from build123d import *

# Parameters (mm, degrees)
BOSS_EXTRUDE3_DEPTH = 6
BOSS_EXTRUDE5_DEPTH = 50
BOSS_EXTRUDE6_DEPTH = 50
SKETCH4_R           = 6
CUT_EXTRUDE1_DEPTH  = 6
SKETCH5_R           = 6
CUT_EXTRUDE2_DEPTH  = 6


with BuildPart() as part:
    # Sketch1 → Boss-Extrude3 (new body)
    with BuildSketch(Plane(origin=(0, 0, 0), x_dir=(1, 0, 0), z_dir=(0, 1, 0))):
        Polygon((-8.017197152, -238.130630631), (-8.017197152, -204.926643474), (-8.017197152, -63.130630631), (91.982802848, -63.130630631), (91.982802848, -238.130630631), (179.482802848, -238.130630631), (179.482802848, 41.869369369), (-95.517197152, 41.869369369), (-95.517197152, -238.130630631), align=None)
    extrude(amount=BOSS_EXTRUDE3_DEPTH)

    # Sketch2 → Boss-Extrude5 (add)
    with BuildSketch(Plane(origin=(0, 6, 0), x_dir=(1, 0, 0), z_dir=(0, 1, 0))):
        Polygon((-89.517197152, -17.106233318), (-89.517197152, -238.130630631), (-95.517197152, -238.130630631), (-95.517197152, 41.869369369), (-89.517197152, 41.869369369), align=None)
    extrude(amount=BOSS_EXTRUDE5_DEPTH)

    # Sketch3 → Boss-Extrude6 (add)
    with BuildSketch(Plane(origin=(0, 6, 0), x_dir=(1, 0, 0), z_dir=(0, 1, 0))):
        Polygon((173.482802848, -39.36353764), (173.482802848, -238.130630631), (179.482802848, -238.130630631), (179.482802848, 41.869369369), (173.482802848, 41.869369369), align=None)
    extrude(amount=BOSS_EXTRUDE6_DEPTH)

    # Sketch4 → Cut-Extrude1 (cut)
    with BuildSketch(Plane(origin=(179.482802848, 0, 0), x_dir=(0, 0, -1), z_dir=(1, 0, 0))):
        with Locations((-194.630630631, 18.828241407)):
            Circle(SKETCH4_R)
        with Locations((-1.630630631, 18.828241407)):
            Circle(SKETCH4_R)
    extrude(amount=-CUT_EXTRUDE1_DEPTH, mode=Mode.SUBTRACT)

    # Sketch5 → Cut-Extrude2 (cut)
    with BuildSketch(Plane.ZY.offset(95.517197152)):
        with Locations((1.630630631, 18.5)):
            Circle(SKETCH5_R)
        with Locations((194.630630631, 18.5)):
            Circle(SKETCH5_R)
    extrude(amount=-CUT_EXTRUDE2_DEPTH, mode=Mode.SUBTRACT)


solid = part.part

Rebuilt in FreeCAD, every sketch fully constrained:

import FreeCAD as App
import Part
import Sketcher

doc = App.newDocument("Part")
params = doc.addObject("Spreadsheet::Sheet", "Params")
for row, (alias, value) in enumerate([
    ("sketch1_width", "100 mm"),
    ("sketch1_width2", "275 mm"),
    ("sketch1_height", "175 mm"),
    ("sketch1_height2", "280 mm"),
    ("pad1_length", "6 mm"),
    ("sketch2_width", "6 mm"),
    ("sketch2_height", "280 mm"),
    ("pad2_length", "50 mm"),
    ("sketch3_width", "6 mm"),
    ("sketch3_height", "280 mm"),
    ("pad3_length", "50 mm"),
    ("sketch4_diameter", "12 mm"),
    ("pocket1_length", "6 mm"),
    ("sketch5_diameter", "12 mm"),
    ("pocket2_length", "6 mm"),
], start=1):
    params.set(f"A{row}", alias)
    params.set(f"B{row}", "=" + value)
    params.setAlias(f"B{row}", alias)

body = doc.addObject("PartDesign::Body", "Body")

# Sketch on XZ plane
sketch1 = body.newObject("Sketcher::SketchObject", "Sketch")
sketch1.AttachmentSupport = (doc.getObject("XZ_Plane"), [""])
sketch1.MapMode = "FlatFace"
sketch1.addGeometry(Part.LineSegment(App.Vector(-8.017197, 238.130631, 0), App.Vector(-8.017197, 63.130631, 0)), False)
sketch1.addGeometry(Part.LineSegment(App.Vector(-8.017197, 63.130631, 0), App.Vector(91.982803, 63.130631, 0)), False)
sketch1.addGeometry(Part.LineSegment(App.Vector(91.982803, 63.130631, 0), App.Vector(91.982803, 238.130631, 0)), False)
sketch1.addGeometry(Part.LineSegment(App.Vector(91.982803, 238.130631, 0), App.Vector(179.482803, 238.130631, 0)), False)
sketch1.addGeometry(Part.LineSegment(App.Vector(179.482803, 238.130631, 0), App.Vector(179.482803, -41.869369, 0)), False)
sketch1.addGeometry(Part.LineSegment(App.Vector(179.482803, -41.869369, 0), App.Vector(-95.517197, -41.869369, 0)), False)
sketch1.addGeometry(Part.LineSegment(App.Vector(-95.517197, -41.869369, 0), App.Vector(-95.517197, 238.130631, 0)), False)
sketch1.addGeometry(Part.LineSegment(App.Vector(-95.517197, 238.130631, 0), App.Vector(-8.017197, 238.130631, 0)), False)
sketch1.addConstraint(Sketcher.Constraint("Coincident", 0, 2, 1, 1))
sketch1.addConstraint(Sketcher.Constraint("Coincident", 1, 2, 2, 1))
sketch1.addConstraint(Sketcher.Constraint("Coincident", 2, 2, 3, 1))
sketch1.addConstraint(Sketcher.Constraint("Coincident", 3, 2, 4, 1))
sketch1.addConstraint(Sketcher.Constraint("Coincident", 4, 2, 5, 1))
sketch1.addConstraint(Sketcher.Constraint("Coincident", 5, 2, 6, 1))
sketch1.addConstraint(Sketcher.Constraint("Coincident", 6, 2, 7, 1))
sketch1.addConstraint(Sketcher.Constraint("Coincident", 7, 2, 0, 1))
sketch1.addConstraint(Sketcher.Constraint("Vertical", 0))
sketch1.addConstraint(Sketcher.Constraint("Horizontal", 1))
sketch1.addConstraint(Sketcher.Constraint("Vertical", 2))
sketch1.addConstraint(Sketcher.Constraint("Horizontal", 3))
sketch1.addConstraint(Sketcher.Constraint("Vertical", 4))
sketch1.addConstraint(Sketcher.Constraint("Horizontal", 5))
sketch1.addConstraint(Sketcher.Constraint("Vertical", 6))
sketch1.addConstraint(Sketcher.Constraint("Horizontal", 7))
sketch1.addConstraint(Sketcher.Constraint("Horizontal", 3, 2, 6, 2))
sketch1.addConstraint(Sketcher.Constraint("Equal", 3, 7))
sketch1.addConstraint(Sketcher.Constraint("DistanceX", 1, 1, 1, 2, 100.0))
sketch1.addConstraint(Sketcher.Constraint("DistanceX", 5, 2, 5, 1, 275.0))
sketch1.addConstraint(Sketcher.Constraint("DistanceY", 0, 2, 0, 1, 175.0))
sketch1.addConstraint(Sketcher.Constraint("DistanceY", 4, 2, 4, 1, 280.0))
sketch1.addConstraint(Sketcher.Constraint("DistanceY", -1, 1, 0, 2, 63.130631))
sketch1.addConstraint(Sketcher.Constraint("DistanceX", 0, 2, -1, 1, 8.017197))
sketch1.setExpression("Constraints[18]", "Params.sketch1_width")
sketch1.setExpression("Constraints[19]", "Params.sketch1_width2")
sketch1.setExpression("Constraints[20]", "Params.sketch1_height")
sketch1.setExpression("Constraints[21]", "Params.sketch1_height2")
pad1 = body.newObject("PartDesign::Pad", "Pad")
pad1.Profile = sketch1
pad1.setExpression("Length", "Params.pad1_length")
pad1.Reversed = True

# Sketch on XZ plane
sketch2 = body.newObject("Sketcher::SketchObject", "Sketch001")
sketch2.AttachmentSupport = (doc.getObject("XZ_Plane"), [""])
sketch2.MapMode = "FlatFace"
sketch2.AttachmentOffset = App.Placement(App.Vector(0, 0, -6), App.Rotation())
sketch2.addGeometry(Part.LineSegment(App.Vector(-89.517197, 238.130631, 0), App.Vector(-89.517197, -41.869369, 0)), False)
sketch2.addGeometry(Part.LineSegment(App.Vector(-89.517197, -41.869369, 0), App.Vector(-95.517197, -41.869369, 0)), False)
sketch2.addGeometry(Part.LineSegment(App.Vector(-95.517197, -41.869369, 0), App.Vector(-95.517197, 238.130631, 0)), False)
sketch2.addGeometry(Part.LineSegment(App.Vector(-95.517197, 238.130631, 0), App.Vector(-89.517197, 238.130631, 0)), False)
sketch2.addConstraint(Sketcher.Constraint("Coincident", 0, 2, 1, 1))
sketch2.addConstraint(Sketcher.Constraint("Coincident", 1, 2, 2, 1))
sketch2.addConstraint(Sketcher.Constraint("Coincident", 2, 2, 3, 1))
sketch2.addConstraint(Sketcher.Constraint("Coincident", 3, 2, 0, 1))
sketch2.addConstraint(Sketcher.Constraint("Vertical", 0))
sketch2.addConstraint(Sketcher.Constraint("Horizontal", 1))
sketch2.addConstraint(Sketcher.Constraint("Vertical", 2))
sketch2.addConstraint(Sketcher.Constraint("Horizontal", 3))
sketch2.addConstraint(Sketcher.Constraint("DistanceX", 1, 2, 1, 1, 6.0))
sketch2.addConstraint(Sketcher.Constraint("DistanceY", 0, 2, 0, 1, 280.0))
sketch2.addConstraint(Sketcher.Constraint("DistanceY", 0, 2, -1, 1, 41.869369))
sketch2.addConstraint(Sketcher.Constraint("DistanceX", 0, 2, -1, 1, 89.517197))
sketch2.setExpression("Constraints[8]", "Params.sketch2_width")
sketch2.setExpression("Constraints[9]", "Params.sketch2_height")
pad2 = body.newObject("PartDesign::Pad", "Pad001")
pad2.Profile = sketch2
pad2.setExpression("Length", "Params.pad2_length")
pad2.Reversed = True

# Sketch on XZ plane
sketch3 = body.newObject("Sketcher::SketchObject", "Sketch002")
sketch3.AttachmentSupport = (doc.getObject("XZ_Plane"), [""])
sketch3.MapMode = "FlatFace"
sketch3.AttachmentOffset = App.Placement(App.Vector(0, 0, -6), App.Rotation())
sketch3.addGeometry(Part.LineSegment(App.Vector(173.482803, 238.130631, 0), App.Vector(179.482803, 238.130631, 0)), False)
sketch3.addGeometry(Part.LineSegment(App.Vector(179.482803, 238.130631, 0), App.Vector(179.482803, -41.869369, 0)), False)
sketch3.addGeometry(Part.LineSegment(App.Vector(179.482803, -41.869369, 0), App.Vector(173.482803, -41.869369, 0)), False)
sketch3.addGeometry(Part.LineSegment(App.Vector(173.482803, -41.869369, 0), App.Vector(173.482803, 238.130631, 0)), False)
sketch3.addConstraint(Sketcher.Constraint("Coincident", 0, 2, 1, 1))
sketch3.addConstraint(Sketcher.Constraint("Coincident", 1, 2, 2, 1))
sketch3.addConstraint(Sketcher.Constraint("Coincident", 2, 2, 3, 1))
sketch3.addConstraint(Sketcher.Constraint("Coincident", 3, 2, 0, 1))
sketch3.addConstraint(Sketcher.Constraint("Horizontal", 0))
sketch3.addConstraint(Sketcher.Constraint("Vertical", 1))
sketch3.addConstraint(Sketcher.Constraint("Horizontal", 2))
sketch3.addConstraint(Sketcher.Constraint("Vertical", 3))
sketch3.addConstraint(Sketcher.Constraint("DistanceX", 0, 1, 0, 2, 6.0))
sketch3.addConstraint(Sketcher.Constraint("DistanceY", 1, 2, 1, 1, 280.0))
sketch3.addConstraint(Sketcher.Constraint("DistanceY", -1, 1, 0, 2, 238.130631))
sketch3.addConstraint(Sketcher.Constraint("DistanceX", -1, 1, 0, 2, 179.482803))
sketch3.setExpression("Constraints[8]", "Params.sketch3_width")
sketch3.setExpression("Constraints[9]", "Params.sketch3_height")
pad3 = body.newObject("PartDesign::Pad", "Pad002")
pad3.Profile = sketch3
pad3.setExpression("Length", "Params.pad3_length")
pad3.Reversed = True

# Sketch on YZ plane
sketch4 = body.newObject("Sketcher::SketchObject", "Sketch003")
sketch4.AttachmentSupport = (doc.getObject("YZ_Plane"), [""])
sketch4.MapMode = "FlatFace"
sketch4.AttachmentOffset = App.Placement(App.Vector(0, 0, 179.482803), App.Rotation())
sketch4.addGeometry(Part.Circle(App.Vector(18.828241, 194.630631, 0), App.Vector(0, 0, 1), 6), False)
sketch4.addGeometry(Part.Circle(App.Vector(18.828241, 1.630631, 0), App.Vector(0, 0, 1), 6), False)
sketch4.addConstraint(Sketcher.Constraint("Equal", 0, 1))
sketch4.addConstraint(Sketcher.Constraint("Vertical", 0, 3, 1, 3))
sketch4.addConstraint(Sketcher.Constraint("Diameter", 0, 12.0))
sketch4.addConstraint(Sketcher.Constraint("DistanceY", 1, 3, 0, 3, 193.0))
sketch4.addConstraint(Sketcher.Constraint("DistanceX", -1, 1, 0, 3, 18.828241))
sketch4.addConstraint(Sketcher.Constraint("DistanceY", -1, 1, 0, 3, 194.630631))
sketch4.setExpression("Constraints[2]", "Params.sketch4_diameter")
pocket1 = body.newObject("PartDesign::Pocket", "Pocket")
pocket1.Profile = sketch4
pocket1.setExpression("Length", "Params.pocket1_length")

# Sketch on YZ plane
sketch5 = body.newObject("Sketcher::SketchObject", "Sketch004")
sketch5.AttachmentSupport = (doc.getObject("YZ_Plane"), [""])
sketch5.MapMode = "FlatFace"
sketch5.AttachmentOffset = App.Placement(App.Vector(0, 0, -95.517197), App.Rotation())
sketch5.addGeometry(Part.Circle(App.Vector(18.5, 1.630631, 0), App.Vector(0, 0, 1), 6), False)
sketch5.addGeometry(Part.Circle(App.Vector(18.5, 194.630631, 0), App.Vector(0, 0, 1), 6), False)
sketch5.addConstraint(Sketcher.Constraint("Equal", 0, 1))
sketch5.addConstraint(Sketcher.Constraint("Vertical", 0, 3, 1, 3))
sketch5.addConstraint(Sketcher.Constraint("Diameter", 0, 12.0))
sketch5.addConstraint(Sketcher.Constraint("DistanceY", 0, 3, 1, 3, 193.0))
sketch5.addConstraint(Sketcher.Constraint("DistanceX", -1, 1, 0, 3, 18.5))
sketch5.addConstraint(Sketcher.Constraint("DistanceY", -1, 1, 0, 3, 1.630631))
sketch5.setExpression("Constraints[2]", "Params.sketch5_diameter")
pocket2 = body.newObject("PartDesign::Pocket", "Pocket001")
pocket2.Profile = sketch5
pocket2.setExpression("Length", "Params.pocket2_length")
pocket2.Reversed = True

doc.recompute()
